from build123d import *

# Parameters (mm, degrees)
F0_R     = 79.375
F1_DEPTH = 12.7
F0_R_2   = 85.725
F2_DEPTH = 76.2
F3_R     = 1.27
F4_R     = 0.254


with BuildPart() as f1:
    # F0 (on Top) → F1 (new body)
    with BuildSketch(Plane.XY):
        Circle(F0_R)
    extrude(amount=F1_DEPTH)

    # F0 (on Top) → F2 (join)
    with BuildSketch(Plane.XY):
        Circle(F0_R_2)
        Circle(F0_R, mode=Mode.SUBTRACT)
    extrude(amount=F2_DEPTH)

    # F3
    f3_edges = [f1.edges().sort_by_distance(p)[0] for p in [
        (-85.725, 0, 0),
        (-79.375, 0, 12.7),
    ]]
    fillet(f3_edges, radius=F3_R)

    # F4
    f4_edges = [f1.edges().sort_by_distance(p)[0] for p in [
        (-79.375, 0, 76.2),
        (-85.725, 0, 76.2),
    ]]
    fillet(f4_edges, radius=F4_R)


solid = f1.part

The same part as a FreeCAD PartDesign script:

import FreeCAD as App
import Part
import Sketcher

V = App.Vector
Q = App.Units.Quantity


def edges_at(feature, points):
    """Names of the edges that pass closest to the given points."""
    edges = feature.Shape.Edges
    near = lambda p: min(range(len(edges)), key=lambda i: edges[i].distToShape(Part.Vertex(*p))[0])
    return sorted({f"Edge{near(p) + 1}" for p in points})

doc = App.newDocument("Part")
body = doc.addObject("PartDesign::Body", "Body")

# Sketch on XY plane
sketch1 = doc.addObject("Sketcher::SketchObject", "Sketch")
body.addObject(sketch1)
sketch1.AttachmentSupport = (doc.XY_Plane, [""])
sketch1.MapMode = "FlatFace"
sketch1.addGeometry(Part.Circle(V(0, 0, 0), V(0, 0, 1), 79.375), False)
sketch1.addConstraint([
    Sketcher.Constraint("Coincident", 0, 3, -1, 1),
    Sketcher.Constraint("Diameter", 0, Q("6.25 in")),
])
pad1 = doc.addObject("PartDesign::Pad", "Pad")
body.addObject(pad1)
pad1.Profile = sketch1
pad1.Length = Q("0.5 in")

# Sketch on XY plane
sketch2 = doc.addObject("Sketcher::SketchObject", "Sketch001")
body.addObject(sketch2)
sketch2.AttachmentSupport = (doc.XY_Plane, [""])
sketch2.MapMode = "FlatFace"
sketch2.addGeometry([
    Part.Circle(V(0, 0, 0), V(0, 0, 1), 85.725),
    Part.Circle(V(0, 0, 0), V(0, 0, 1), 79.375),
], False)
sketch2.addConstraint([
    Sketcher.Constraint("Coincident", 0, 3, -1, 1),
    Sketcher.Constraint("Coincident", 1, 3, -1, 1),
    Sketcher.Constraint("Diameter", 0, Q("6.75 in")),
    Sketcher.Constraint("Diameter", 1, Q("6.25 in")),
])
pad2 = doc.addObject("PartDesign::Pad", "Pad001")
body.addObject(pad2)
pad2.Profile = sketch2
pad2.Length = Q("3 in")
doc.recompute()

fillet = doc.addObject("PartDesign::Fillet", "Fillet")
body.addObject(fillet)
fillet.Base = (pad2, edges_at(pad2, [(-85.725, 0, 0), (-79.375, 0, 12.7)]))
fillet.Radius = Q("0.05 in")
doc.recompute()

fillet2 = doc.addObject("PartDesign::Fillet", "Fillet001")
body.addObject(fillet2)
fillet2.Base = (fillet, edges_at(fillet, [(-79.375, 0, 76.2), (-85.725, 0, 76.2)]))
fillet2.Radius = Q("0.01 in")

doc.recompute()
